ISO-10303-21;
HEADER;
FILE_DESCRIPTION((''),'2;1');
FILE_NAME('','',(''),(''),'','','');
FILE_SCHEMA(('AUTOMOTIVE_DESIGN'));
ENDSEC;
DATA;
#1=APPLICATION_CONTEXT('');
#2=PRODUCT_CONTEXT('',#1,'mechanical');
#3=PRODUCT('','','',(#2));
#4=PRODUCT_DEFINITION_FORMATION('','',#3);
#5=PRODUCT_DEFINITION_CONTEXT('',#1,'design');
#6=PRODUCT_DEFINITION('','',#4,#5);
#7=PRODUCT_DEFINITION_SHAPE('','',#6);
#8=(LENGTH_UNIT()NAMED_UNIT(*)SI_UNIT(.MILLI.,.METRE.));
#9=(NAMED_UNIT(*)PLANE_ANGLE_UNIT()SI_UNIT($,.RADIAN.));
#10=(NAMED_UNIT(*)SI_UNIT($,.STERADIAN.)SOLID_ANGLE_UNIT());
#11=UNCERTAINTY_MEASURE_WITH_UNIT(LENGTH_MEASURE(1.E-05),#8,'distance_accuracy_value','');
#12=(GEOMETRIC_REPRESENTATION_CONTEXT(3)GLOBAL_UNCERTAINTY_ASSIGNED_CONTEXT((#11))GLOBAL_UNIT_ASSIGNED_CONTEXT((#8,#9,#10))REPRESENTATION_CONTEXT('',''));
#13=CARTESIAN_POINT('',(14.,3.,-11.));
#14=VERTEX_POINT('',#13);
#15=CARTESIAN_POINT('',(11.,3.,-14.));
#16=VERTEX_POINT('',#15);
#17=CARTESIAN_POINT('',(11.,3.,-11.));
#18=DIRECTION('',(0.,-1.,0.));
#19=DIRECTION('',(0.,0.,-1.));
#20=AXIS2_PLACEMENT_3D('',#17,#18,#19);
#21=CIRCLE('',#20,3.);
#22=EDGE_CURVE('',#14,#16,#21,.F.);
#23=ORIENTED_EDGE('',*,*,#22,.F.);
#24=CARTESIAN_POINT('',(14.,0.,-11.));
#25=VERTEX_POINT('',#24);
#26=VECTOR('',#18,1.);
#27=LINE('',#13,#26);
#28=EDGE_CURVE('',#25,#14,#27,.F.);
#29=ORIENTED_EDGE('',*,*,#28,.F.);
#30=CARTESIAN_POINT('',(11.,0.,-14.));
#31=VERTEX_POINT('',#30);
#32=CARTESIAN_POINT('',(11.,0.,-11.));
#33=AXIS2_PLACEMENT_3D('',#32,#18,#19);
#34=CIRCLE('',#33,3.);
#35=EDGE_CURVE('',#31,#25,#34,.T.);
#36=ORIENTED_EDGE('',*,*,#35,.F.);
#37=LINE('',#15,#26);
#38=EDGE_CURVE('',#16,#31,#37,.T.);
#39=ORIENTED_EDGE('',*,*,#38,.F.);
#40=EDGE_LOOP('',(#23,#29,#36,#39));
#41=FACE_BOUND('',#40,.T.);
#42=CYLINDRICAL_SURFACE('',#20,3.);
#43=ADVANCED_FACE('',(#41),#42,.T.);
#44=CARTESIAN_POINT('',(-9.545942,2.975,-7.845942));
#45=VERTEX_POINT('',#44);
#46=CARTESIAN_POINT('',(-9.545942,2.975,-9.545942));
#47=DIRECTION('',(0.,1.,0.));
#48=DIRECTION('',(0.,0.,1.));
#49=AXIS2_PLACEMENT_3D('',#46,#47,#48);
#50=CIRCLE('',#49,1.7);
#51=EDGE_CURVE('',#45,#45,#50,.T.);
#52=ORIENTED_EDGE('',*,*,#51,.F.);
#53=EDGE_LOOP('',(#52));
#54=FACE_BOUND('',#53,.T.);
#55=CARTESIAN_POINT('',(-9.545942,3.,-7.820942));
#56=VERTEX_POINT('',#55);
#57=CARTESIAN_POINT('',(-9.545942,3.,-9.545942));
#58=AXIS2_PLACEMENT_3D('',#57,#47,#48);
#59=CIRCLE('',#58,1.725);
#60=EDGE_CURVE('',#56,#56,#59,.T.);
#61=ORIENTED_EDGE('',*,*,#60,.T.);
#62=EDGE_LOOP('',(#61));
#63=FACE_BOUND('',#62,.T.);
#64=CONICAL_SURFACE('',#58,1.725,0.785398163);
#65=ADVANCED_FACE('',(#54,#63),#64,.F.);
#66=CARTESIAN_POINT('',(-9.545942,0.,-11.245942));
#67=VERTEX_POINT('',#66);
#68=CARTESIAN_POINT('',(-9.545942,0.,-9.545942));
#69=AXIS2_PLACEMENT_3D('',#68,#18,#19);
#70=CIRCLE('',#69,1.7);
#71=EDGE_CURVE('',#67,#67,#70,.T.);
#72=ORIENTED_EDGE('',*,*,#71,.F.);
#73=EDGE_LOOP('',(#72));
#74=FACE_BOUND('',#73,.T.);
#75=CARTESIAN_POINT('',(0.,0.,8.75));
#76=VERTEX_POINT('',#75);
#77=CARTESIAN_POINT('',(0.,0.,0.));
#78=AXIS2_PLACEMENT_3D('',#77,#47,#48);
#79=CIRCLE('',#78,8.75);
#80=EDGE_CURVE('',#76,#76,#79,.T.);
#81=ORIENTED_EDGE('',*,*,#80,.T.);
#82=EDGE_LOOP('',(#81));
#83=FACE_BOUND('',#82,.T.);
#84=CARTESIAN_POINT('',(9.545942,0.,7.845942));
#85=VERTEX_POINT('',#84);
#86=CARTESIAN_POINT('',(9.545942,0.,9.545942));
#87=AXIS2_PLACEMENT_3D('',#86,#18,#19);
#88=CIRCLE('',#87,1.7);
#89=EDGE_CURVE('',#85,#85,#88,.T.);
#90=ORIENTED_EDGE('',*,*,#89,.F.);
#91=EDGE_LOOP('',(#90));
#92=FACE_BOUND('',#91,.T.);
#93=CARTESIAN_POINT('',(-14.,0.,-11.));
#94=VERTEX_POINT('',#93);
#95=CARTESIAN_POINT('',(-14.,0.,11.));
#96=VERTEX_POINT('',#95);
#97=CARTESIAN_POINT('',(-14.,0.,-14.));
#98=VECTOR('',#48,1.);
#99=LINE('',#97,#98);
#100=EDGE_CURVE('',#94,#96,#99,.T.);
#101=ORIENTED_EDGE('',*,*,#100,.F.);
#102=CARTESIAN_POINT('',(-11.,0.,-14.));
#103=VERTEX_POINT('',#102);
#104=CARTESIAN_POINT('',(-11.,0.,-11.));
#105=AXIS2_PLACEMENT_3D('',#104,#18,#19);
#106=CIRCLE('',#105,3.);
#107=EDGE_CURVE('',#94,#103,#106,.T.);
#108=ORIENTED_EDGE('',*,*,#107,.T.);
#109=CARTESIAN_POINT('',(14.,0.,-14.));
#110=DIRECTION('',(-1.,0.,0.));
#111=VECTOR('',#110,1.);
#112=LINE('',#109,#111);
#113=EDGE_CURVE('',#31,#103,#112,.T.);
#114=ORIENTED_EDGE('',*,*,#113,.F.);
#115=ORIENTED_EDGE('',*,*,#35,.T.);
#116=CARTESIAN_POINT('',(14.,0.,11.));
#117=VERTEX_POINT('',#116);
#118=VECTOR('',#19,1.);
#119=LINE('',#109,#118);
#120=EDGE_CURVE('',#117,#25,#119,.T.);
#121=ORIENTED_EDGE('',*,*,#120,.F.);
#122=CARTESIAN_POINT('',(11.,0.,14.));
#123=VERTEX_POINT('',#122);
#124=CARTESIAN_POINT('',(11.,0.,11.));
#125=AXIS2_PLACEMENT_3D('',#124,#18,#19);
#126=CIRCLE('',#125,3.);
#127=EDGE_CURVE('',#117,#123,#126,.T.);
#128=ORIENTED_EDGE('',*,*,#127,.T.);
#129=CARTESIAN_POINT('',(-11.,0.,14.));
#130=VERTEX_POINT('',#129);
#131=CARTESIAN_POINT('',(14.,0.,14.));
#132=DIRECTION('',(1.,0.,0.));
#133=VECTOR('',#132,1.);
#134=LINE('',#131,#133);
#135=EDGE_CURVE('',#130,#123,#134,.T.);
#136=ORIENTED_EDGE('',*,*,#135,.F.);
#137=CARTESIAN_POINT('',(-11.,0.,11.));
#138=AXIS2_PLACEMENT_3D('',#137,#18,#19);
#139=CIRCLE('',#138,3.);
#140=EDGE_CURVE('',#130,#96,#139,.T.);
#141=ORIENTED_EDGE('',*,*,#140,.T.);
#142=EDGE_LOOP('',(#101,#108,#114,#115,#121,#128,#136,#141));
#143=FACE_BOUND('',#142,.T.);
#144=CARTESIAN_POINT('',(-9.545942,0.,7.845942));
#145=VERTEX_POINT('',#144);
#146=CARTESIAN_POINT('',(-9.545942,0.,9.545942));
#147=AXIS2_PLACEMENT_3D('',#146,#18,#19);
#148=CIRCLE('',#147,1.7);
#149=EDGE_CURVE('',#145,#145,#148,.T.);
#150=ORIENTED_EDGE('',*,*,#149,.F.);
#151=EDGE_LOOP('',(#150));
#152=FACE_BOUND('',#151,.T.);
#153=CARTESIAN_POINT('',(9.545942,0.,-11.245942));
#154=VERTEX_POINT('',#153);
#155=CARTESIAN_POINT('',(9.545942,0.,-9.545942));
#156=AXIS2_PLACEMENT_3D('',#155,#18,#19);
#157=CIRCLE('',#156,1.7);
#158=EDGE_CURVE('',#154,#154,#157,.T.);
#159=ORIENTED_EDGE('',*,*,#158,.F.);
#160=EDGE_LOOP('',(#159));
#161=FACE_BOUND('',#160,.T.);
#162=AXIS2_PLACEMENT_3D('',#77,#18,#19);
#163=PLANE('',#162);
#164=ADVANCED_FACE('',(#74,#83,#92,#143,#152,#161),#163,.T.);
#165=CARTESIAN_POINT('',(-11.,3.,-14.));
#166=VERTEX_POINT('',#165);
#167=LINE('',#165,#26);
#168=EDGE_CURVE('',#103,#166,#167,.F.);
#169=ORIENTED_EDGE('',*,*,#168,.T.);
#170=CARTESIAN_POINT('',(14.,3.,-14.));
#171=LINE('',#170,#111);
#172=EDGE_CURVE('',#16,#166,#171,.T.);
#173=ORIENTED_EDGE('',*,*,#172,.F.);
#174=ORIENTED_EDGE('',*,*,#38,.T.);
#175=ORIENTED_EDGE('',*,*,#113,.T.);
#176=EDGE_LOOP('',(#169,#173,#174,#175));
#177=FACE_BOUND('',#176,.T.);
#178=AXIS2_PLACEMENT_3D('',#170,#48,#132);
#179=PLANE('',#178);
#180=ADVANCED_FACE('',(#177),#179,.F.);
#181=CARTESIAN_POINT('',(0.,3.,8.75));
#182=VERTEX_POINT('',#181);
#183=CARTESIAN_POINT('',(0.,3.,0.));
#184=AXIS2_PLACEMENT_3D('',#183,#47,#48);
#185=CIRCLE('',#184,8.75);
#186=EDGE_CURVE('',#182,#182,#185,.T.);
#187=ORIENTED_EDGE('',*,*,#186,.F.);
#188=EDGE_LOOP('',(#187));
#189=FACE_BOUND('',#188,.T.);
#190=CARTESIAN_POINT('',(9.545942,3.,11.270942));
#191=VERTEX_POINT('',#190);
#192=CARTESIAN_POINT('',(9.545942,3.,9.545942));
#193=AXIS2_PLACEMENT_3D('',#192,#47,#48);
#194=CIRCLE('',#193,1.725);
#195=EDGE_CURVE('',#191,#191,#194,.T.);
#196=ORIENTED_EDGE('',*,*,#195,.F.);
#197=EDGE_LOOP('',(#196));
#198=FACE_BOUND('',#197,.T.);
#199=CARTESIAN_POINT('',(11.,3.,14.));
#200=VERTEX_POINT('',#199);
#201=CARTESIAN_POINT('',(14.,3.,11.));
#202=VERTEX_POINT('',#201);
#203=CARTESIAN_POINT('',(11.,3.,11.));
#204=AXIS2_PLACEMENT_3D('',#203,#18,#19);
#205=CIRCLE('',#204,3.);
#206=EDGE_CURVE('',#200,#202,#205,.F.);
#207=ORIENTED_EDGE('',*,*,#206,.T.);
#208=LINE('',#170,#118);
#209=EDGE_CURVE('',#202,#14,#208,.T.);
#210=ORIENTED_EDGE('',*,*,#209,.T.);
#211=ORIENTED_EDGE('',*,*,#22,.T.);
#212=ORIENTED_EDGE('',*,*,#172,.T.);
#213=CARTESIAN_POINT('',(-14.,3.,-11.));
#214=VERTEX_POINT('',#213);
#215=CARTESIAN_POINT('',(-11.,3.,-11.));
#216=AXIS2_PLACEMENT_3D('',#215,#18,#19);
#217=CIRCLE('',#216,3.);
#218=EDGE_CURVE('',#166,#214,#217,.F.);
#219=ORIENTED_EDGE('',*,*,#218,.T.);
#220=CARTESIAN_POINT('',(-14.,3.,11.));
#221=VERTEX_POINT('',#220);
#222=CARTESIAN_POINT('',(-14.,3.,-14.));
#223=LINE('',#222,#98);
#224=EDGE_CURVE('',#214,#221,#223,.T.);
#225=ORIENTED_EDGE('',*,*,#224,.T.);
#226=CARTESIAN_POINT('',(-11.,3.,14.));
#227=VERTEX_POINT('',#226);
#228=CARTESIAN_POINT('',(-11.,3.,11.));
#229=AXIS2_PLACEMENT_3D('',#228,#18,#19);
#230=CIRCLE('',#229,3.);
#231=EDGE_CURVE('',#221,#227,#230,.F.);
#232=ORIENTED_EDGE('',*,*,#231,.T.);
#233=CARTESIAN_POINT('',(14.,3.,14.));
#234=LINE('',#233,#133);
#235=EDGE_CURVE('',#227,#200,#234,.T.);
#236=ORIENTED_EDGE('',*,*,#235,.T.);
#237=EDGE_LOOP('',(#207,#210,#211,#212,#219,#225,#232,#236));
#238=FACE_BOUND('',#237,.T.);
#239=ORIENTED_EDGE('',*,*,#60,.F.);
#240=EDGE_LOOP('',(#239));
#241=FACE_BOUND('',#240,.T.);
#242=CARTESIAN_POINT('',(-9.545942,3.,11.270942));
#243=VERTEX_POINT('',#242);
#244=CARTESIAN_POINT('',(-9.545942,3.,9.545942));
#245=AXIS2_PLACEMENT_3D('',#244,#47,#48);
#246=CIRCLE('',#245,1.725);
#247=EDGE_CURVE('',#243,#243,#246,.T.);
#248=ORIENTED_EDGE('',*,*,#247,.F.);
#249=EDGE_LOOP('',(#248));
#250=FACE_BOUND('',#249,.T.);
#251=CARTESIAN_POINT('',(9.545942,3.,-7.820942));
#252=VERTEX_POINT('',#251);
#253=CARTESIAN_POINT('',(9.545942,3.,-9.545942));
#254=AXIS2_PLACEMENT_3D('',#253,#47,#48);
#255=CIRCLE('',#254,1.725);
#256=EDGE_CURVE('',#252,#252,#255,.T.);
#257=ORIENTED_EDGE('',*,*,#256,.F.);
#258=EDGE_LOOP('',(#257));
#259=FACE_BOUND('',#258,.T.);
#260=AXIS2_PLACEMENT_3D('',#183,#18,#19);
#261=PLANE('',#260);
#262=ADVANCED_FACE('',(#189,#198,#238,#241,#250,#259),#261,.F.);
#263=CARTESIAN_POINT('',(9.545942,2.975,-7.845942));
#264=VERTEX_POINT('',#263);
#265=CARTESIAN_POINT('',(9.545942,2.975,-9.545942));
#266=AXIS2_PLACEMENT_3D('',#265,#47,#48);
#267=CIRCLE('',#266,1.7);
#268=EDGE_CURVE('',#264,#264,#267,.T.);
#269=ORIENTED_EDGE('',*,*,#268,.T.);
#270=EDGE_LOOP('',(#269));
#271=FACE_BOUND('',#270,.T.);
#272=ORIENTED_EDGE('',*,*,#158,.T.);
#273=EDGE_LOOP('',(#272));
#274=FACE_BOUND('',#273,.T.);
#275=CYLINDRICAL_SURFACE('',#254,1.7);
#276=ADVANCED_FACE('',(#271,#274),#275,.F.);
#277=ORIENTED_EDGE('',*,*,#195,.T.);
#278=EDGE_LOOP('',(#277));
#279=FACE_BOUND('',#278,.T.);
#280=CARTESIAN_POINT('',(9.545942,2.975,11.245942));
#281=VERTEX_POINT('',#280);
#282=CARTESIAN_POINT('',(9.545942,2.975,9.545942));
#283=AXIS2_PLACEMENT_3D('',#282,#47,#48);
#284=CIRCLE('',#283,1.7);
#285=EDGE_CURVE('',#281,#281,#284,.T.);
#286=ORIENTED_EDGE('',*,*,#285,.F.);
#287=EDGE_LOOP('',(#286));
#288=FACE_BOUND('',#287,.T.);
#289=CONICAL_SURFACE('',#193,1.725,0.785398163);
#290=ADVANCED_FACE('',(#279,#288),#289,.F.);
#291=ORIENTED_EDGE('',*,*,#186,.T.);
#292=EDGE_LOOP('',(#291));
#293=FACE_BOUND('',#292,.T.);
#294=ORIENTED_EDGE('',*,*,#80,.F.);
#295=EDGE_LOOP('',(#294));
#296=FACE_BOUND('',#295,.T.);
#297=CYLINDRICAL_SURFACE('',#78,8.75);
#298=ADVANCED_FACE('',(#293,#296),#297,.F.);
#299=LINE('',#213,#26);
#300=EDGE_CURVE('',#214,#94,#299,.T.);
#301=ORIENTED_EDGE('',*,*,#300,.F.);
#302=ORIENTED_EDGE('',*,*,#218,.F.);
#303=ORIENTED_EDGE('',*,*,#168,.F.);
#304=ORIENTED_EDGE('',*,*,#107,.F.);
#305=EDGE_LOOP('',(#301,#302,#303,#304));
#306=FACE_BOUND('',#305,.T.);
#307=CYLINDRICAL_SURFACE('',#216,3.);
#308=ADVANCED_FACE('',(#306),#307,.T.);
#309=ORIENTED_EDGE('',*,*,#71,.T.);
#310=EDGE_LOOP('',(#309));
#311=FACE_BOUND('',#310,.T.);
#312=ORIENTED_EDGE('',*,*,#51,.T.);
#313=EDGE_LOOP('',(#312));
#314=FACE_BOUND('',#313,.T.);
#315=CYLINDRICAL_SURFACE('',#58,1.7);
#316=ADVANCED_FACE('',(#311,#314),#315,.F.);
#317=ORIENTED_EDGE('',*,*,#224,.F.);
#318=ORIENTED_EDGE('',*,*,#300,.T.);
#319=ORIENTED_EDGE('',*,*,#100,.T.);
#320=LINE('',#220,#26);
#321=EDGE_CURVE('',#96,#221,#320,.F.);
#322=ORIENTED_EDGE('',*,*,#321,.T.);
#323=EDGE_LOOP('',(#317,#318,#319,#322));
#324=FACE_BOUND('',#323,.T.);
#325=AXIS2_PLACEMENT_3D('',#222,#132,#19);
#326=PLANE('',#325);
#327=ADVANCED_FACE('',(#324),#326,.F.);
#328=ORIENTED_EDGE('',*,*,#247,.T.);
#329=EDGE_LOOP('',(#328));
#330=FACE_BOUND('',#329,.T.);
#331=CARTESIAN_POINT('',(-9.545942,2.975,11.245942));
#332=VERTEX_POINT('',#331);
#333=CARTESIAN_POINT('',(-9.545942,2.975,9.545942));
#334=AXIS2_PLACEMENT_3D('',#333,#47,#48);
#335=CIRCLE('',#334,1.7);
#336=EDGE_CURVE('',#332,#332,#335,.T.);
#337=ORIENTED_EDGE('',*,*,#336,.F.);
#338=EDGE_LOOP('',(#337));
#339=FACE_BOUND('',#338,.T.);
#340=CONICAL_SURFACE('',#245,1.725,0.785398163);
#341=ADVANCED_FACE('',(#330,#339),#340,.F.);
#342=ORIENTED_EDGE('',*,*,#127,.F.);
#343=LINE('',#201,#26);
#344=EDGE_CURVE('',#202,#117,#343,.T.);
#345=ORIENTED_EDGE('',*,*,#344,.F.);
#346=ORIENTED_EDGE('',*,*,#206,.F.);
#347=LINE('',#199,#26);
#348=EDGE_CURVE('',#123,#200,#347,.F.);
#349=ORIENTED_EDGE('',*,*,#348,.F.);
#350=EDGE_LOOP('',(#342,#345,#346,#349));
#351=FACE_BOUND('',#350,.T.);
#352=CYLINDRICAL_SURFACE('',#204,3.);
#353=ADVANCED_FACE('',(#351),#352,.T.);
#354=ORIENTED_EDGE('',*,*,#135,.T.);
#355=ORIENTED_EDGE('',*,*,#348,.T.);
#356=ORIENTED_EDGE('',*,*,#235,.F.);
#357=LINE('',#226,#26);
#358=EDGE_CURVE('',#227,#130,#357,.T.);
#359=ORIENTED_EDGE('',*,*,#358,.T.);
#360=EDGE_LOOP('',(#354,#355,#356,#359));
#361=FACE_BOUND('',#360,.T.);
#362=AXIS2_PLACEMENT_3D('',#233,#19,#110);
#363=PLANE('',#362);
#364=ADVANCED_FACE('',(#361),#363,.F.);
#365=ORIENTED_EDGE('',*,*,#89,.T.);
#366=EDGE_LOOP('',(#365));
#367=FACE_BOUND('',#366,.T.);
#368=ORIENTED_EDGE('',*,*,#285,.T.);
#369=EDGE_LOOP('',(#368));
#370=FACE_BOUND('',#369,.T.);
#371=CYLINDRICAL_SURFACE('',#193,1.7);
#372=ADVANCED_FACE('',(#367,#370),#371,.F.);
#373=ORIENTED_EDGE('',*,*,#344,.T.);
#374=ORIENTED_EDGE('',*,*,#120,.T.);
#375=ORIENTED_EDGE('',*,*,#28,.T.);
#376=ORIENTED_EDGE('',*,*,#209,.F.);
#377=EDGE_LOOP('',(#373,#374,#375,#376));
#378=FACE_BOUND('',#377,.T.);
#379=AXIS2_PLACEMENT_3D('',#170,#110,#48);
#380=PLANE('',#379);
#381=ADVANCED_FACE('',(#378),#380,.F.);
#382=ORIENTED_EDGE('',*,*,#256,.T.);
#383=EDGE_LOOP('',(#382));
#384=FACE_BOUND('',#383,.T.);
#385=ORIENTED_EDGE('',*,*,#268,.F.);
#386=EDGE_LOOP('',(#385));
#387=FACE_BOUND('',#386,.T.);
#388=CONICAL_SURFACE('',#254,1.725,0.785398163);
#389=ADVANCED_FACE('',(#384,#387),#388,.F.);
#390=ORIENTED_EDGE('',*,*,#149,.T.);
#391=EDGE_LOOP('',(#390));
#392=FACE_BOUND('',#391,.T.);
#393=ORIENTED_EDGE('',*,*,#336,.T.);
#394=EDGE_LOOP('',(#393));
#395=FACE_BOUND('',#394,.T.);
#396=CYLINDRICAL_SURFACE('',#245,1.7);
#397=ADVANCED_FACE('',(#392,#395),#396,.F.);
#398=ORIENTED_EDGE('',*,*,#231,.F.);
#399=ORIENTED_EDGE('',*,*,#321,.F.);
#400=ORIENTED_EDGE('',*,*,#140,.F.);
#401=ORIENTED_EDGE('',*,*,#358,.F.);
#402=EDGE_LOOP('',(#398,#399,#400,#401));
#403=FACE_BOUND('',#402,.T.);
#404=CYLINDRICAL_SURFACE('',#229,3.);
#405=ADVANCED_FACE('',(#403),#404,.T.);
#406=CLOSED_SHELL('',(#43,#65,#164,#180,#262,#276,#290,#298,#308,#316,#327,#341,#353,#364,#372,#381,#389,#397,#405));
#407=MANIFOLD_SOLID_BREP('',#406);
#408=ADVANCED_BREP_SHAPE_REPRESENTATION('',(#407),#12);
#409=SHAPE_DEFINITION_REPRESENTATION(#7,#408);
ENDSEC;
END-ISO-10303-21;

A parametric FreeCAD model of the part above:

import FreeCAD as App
import Part
import Sketcher

V = App.Vector
Q = App.Units.Quantity


def edges_at(feature, points):
    """Names of the edges that pass closest to the given points."""
    edges = feature.Shape.Edges
    near = lambda p: min(range(len(edges)), key=lambda i: edges[i].distToShape(Part.Vertex(*p))[0])
    return sorted({f"Edge{near(p) + 1}" for p in points})


def add_polygon(sketch, points):
    """Adds a closed chain of lines whose ends are joined by coincident constraints."""
    first, n = sketch.GeometryCount, len(points)
    for a, b in zip(points, points[1:] + points[:1]):
        sketch.addGeometry(Part.LineSegment(App.Vector(*a, 0), App.Vector(*b, 0)), False)
    for i in range(n):
        sketch.addConstraint(Sketcher.Constraint("Coincident", first + i, 2, first + (i + 1) % n, 1))

doc = App.newDocument("Part")
body = doc.addObject("PartDesign::Body", "Body")

# Sketch on XZ plane
sketch1 = doc.addObject("Sketcher::SketchObject", "Sketch")
body.addObject(sketch1)
sketch1.AttachmentSupport = (doc.XZ_Plane, [""])
sketch1.MapMode = "FlatFace"
add_polygon(sketch1, [(-14, -14), (-14, 14), (14, 14), (14, -14)])  # lines 0-3
sketch1.addConstraint([
    Sketcher.Constraint("Vertical", 0),
    Sketcher.Constraint("Horizontal", 1),
    Sketcher.Constraint("Vertical", 2),
    Sketcher.Constraint("Horizontal", 3),
    Sketcher.Constraint("Symmetric", 0, 2, 2, 2, -1, 1),
    Sketcher.Constraint("Equal", 3, 0),
    Sketcher.Constraint("DistanceX", 1, 1, 1, 2, Q("28 mm")),
])
pad1 = doc.addObject("PartDesign::Pad", "Pad")
body.addObject(pad1)
pad1.Profile = sketch1
pad1.Length = 3
pad1.Reversed = True

# Sketch on XZ plane
sketch2 = doc.addObject("Sketcher::SketchObject", "Sketch001")
body.addObject(sketch2)
sketch2.AttachmentSupport = (doc.XZ_Plane, [""])
sketch2.MapMode = "FlatFace"
sketch2.AttachmentOffset = App.Placement(V(0, 0, -3), App.Rotation())
sketch2.addGeometry(Part.Circle(V(0, 0, 0), V(0, 0, 1), 8.75), False)
sketch2.addConstraint([
    Sketcher.Constraint("Coincident", 0, 3, -1, 1),
    Sketcher.Constraint("Diameter", 0, Q("17.5 mm")),
])
pocket1 = doc.addObject("PartDesign::Pocket", "Pocket")
body.addObject(pocket1)
pocket1.Profile = sketch2
pocket1.Type = "ThroughAll"
pocket1.Reversed = True

# Sketch on XZ plane
sketch3 = doc.addObject("Sketcher::SketchObject", "Sketch002")
body.addObject(sketch3)
sketch3.AttachmentSupport = (doc.XZ_Plane, [""])
sketch3.MapMode = "FlatFace"
sketch3.AttachmentOffset = App.Placement(V(0, 0, -3), App.Rotation())
sketch3.addGeometry([
    Part.Circle(V(-9.545942, -9.545942, 0), V(0, 0, 1), 1.7),
    Part.Circle(V(9.545942, -9.545942, 0), V(0, 0, 1), 1.7),
    Part.Circle(V(9.545942, 9.545942, 0), V(0, 0, 1), 1.7),
    Part.Circle(V(-9.545942, 9.545942, 0), V(0, 0, 1), 1.7),
], False)
sketch3.addConstraint([
    Sketcher.Constraint("Equal", 0, 1),
    Sketcher.Constraint("Equal", 1, 2),
    Sketcher.Constraint("Equal", 2, 3),
    Sketcher.Constraint("Symmetric", 0, 3, 2, 3, -1, 1),
    Sketcher.Constraint("Symmetric", 1, 3, 3, 3, -1, 1),
    Sketcher.Constraint("Symmetric", 0, 3, 1, 3, -2),
    Sketcher.Constraint("Diameter", 0, Q("3.4 mm")),
    Sketcher.Constraint("DistanceX", 0, 3, -1, 1, Q("9.545942 mm")),
    Sketcher.Constraint("DistanceY", 0, 3, -1, 1, Q("9.545942 mm")),
])
doc.recompute()
hole = doc.addObject("PartDesign::Hole", "Hole")
body.addObject(hole)
hole.Profile = sketch3
hole.ThreadType = "None"
hole.Diameter = 3.4
hole.DepthType = "ThroughAll"
hole.HoleCutType = "Countersink"
hole.HoleCutDiameter = 3.45
hole.HoleCutCountersinkAngle = 90
hole.Reversed = True
doc.recompute()

fillet = doc.addObject("PartDesign::Fillet", "Fillet")
body.addObject(fillet)
fillet.Base = (hole, edges_at(hole, [
    (-14, 1.5, -14),
    (14, 1.5, -14),
    (14, 1.5, 14),
    (-14, 1.5, 14),
]))
fillet.Radius = 3

doc.recompute()
